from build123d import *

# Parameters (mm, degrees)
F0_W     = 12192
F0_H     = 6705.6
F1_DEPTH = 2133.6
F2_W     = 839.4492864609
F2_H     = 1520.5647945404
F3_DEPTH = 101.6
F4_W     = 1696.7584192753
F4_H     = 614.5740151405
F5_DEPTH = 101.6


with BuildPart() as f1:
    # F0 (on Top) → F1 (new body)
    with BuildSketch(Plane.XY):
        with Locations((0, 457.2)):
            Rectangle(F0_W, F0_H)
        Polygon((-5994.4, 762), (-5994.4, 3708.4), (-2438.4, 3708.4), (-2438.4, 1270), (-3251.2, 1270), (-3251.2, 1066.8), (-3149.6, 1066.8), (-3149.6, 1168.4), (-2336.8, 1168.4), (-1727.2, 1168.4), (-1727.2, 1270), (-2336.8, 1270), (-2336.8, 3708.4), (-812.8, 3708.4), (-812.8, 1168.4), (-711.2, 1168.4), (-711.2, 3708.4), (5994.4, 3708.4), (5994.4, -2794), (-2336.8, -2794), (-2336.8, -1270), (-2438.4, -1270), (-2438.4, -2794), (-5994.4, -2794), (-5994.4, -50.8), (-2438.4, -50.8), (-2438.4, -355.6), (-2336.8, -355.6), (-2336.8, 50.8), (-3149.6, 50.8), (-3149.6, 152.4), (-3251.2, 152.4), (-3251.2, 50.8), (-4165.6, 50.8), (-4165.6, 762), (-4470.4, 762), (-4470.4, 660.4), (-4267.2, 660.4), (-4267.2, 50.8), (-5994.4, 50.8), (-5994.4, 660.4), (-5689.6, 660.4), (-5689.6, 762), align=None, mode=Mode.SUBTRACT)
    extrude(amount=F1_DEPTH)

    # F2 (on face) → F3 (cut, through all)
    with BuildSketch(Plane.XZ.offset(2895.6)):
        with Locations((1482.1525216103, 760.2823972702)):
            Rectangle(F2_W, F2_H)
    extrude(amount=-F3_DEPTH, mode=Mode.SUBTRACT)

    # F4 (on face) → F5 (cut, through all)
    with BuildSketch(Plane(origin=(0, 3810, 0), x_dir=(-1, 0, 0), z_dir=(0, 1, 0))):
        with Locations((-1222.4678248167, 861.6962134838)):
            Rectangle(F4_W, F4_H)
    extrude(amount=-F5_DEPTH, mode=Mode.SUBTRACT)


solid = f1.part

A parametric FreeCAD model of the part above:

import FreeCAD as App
import Part
import Sketcher
Q = App.Units.Quantity

doc = App.newDocument("Part")
body = doc.addObject("PartDesign::Body", "Body")

sketch1 = body.newObject("Sketcher::SketchObject", "Sketch")
sketch1.AttachmentSupport = (doc.getObject("XY_Plane"), [""])
sketch1.MapMode = "FlatFace"
sketch1.addGeometry([
    Part.LineSegment(App.Vector(-6096, 3810, 0), App.Vector(-6096, -2896, 0)),
    Part.LineSegment(App.Vector(-6096, -2896, 0), App.Vector(6096, -2896, 0)),
    Part.LineSegment(App.Vector(6096, -2896, 0), App.Vector(6096, 3810, 0)),
    Part.LineSegment(App.Vector(6096, 3810, 0), App.Vector(-6096, 3810, 0)),
    Part.LineSegment(App.Vector(-5690, 762, 0), App.Vector(-5994, 762, 0)),
    Part.LineSegment(App.Vector(-5994, 762, 0), App.Vector(-5994, 3708, 0)),
    Part.LineSegment(App.Vector(-5994, 3708, 0), App.Vector(-2438, 3708, 0)),
    Part.LineSegment(App.Vector(-2438, 3708, 0), App.Vector(-2438, 1270, 0)),
    Part.LineSegment(App.Vector(-2438, 1270, 0), App.Vector(-3251, 1270, 0)),
    Part.LineSegment(App.Vector(-3251, 1270, 0), App.Vector(-3251, 1067, 0)),
    Part.LineSegment(App.Vector(-3251, 1067, 0), App.Vector(-3150, 1067, 0)),
    Part.LineSegment(App.Vector(-3150, 1067, 0), App.Vector(-3150, 1168, 0)),
    Part.LineSegment(App.Vector(-3150, 1168, 0), App.Vector(-1727, 1168, 0)),
    Part.LineSegment(App.Vector(-1727, 1168, 0), App.Vector(-1727, 1270, 0)),
    Part.LineSegment(App.Vector(-1727, 1270, 0), App.Vector(-2337, 1270, 0)),
    Part.LineSegment(App.Vector(-2337, 1270, 0), App.Vector(-2337, 3708, 0)),
    Part.LineSegment(App.Vector(-2337, 3708, 0), App.Vector(-813, 3708, 0)),
    Part.LineSegment(App.Vector(-813, 3708, 0), App.Vector(-813, 1168, 0)),
    Part.LineSegment(App.Vector(-813, 1168, 0), App.Vector(-711, 1168, 0)),
    Part.LineSegment(App.Vector(-711, 1168, 0), App.Vector(-711, 3708, 0)),
    Part.LineSegment(App.Vector(-711, 3708, 0), App.Vector(5994, 3708, 0)),
    Part.LineSegment(App.Vector(5994, 3708, 0), App.Vector(5994, -2794, 0)),
    Part.LineSegment(App.Vector(5994, -2794, 0), App.Vector(-2337, -2794, 0)),
    Part.LineSegment(App.Vector(-2337, -2794, 0), App.Vector(-2337, -1270, 0)),
    Part.LineSegment(App.Vector(-2337, -1270, 0), App.Vector(-2438, -1270, 0)),
    Part.LineSegment(App.Vector(-2438, -1270, 0), App.Vector(-2438, -2794, 0)),
    Part.LineSegment(App.Vector(-2438, -2794, 0), App.Vector(-5994, -2794, 0)),
    Part.LineSegment(App.Vector(-5994, -2794, 0), App.Vector(-5994, -51, 0)),
    Part.LineSegment(App.Vector(-5994, -51, 0), App.Vector(-2438, -51, 0)),
    Part.LineSegment(App.Vector(-2438, -51, 0), App.Vector(-2438, -356, 0)),
    Part.LineSegment(App.Vector(-2438, -356, 0), App.Vector(-2337, -356, 0)),
    Part.LineSegment(App.Vector(-2337, -356, 0), App.Vector(-2337, 51, 0)),
    Part.LineSegment(App.Vector(-2337, 51, 0), App.Vector(-3150, 51, 0)),
    Part.LineSegment(App.Vector(-3150, 51, 0), App.Vector(-3150, 152, 0)),
    Part.LineSegment(App.Vector(-3150, 152, 0), App.Vector(-3251, 152, 0)),
    Part.LineSegment(App.Vector(-3251, 152, 0), App.Vector(-3251, 51, 0)),
    Part.LineSegment(App.Vector(-3251, 51, 0), App.Vector(-4166, 51, 0)),
    Part.LineSegment(App.Vector(-4166, 51, 0), App.Vector(-4166, 762, 0)),
    Part.LineSegment(App.Vector(-4166, 762, 0), App.Vector(-4470, 762, 0)),
    Part.LineSegment(App.Vector(-4470, 762, 0), App.Vector(-4470, 660, 0)),
    Part.LineSegment(App.Vector(-4470, 660, 0), App.Vector(-4267, 660, 0)),
    Part.LineSegment(App.Vector(-4267, 660, 0), App.Vector(-4267, 51, 0)),
    Part.LineSegment(App.Vector(-4267, 51, 0), App.Vector(-5994, 51, 0)),
    Part.LineSegment(App.Vector(-5994, 51, 0), App.Vector(-5994, 660, 0)),
    Part.LineSegment(App.Vector(-5994, 660, 0), App.Vector(-5690, 660, 0)),
    Part.LineSegment(App.Vector(-5690, 660, 0), App.Vector(-5690, 762, 0)),
], False)
sketch1.addConstraint([
    Sketcher.Constraint("Coincident", 0, 2, 1, 1),
    Sketcher.Constraint("Coincident", 1, 2, 2, 1),
    Sketcher.Constraint("Coincident", 2, 2, 3, 1),
    Sketcher.Constraint("Coincident", 3, 2, 0, 1),
    Sketcher.Constraint("Coincident", 4, 2, 5, 1),
    Sketcher.Constraint("Coincident", 5, 2, 6, 1),
    Sketcher.Constraint("Coincident", 6, 2, 7, 1),
    Sketcher.Constraint("Coincident", 7, 2, 8, 1),
    Sketcher.Constraint("Coincident", 8, 2, 9, 1),
    Sketcher.Constraint("Coincident", 9, 2, 10, 1),
    Sketcher.Constraint("Coincident", 10, 2, 11, 1),
    Sketcher.Constraint("Coincident", 11, 2, 12, 1),
    Sketcher.Constraint("Coincident", 12, 2, 13, 1),
    Sketcher.Constraint("Coincident", 13, 2, 14, 1),
    Sketcher.Constraint("Coincident", 14, 2, 15, 1),
    Sketcher.Constraint("Coincident", 15, 2, 16, 1),
    Sketcher.Constraint("Coincident", 16, 2, 17, 1),
    Sketcher.Constraint("Coincident", 17, 2, 18, 1),
    Sketcher.Constraint("Coincident", 18, 2, 19, 1),
    Sketcher.Constraint("Coincident", 19, 2, 20, 1),
    Sketcher.Constraint("Coincident", 20, 2, 21, 1),
    Sketcher.Constraint("Coincident", 21, 2, 22, 1),
    Sketcher.Constraint("Coincident", 22, 2, 23, 1),
    Sketcher.Constraint("Coincident", 23, 2, 24, 1),
    Sketcher.Constraint("Coincident", 24, 2, 25, 1),
    Sketcher.Constraint("Coincident", 25, 2, 26, 1),
    Sketcher.Constraint("Coincident", 26, 2, 27, 1),
    Sketcher.Constraint("Coincident", 27, 2, 28, 1),
    Sketcher.Constraint("Coincident", 28, 2, 29, 1),
    Sketcher.Constraint("Coincident", 29, 2, 30, 1),
    Sketcher.Constraint("Coincident", 30, 2, 31, 1),
    Sketcher.Constraint("Coincident", 31, 2, 32, 1),
    Sketcher.Constraint("Coincident", 32, 2, 33, 1),
    Sketcher.Constraint("Coincident", 33, 2, 34, 1),
    Sketcher.Constraint("Coincident", 34, 2, 35, 1),
    Sketcher.Constraint("Coincident", 35, 2, 36, 1),
    Sketcher.Constraint("Coincident", 36, 2, 37, 1),
    Sketcher.Constraint("Coincident", 37, 2, 38, 1),
    Sketcher.Constraint("Coincident", 38, 2, 39, 1),
    Sketcher.Constraint("Coincident", 39, 2, 40, 1),
    Sketcher.Constraint("Coincident", 40, 2, 41, 1),
    Sketcher.Constraint("Coincident", 41, 2, 42, 1),
    Sketcher.Constraint("Coincident", 42, 2, 43, 1),
    Sketcher.Constraint("Coincident", 43, 2, 44, 1),
    Sketcher.Constraint("Coincident", 44, 2, 45, 1),
    Sketcher.Constraint("Coincident", 45, 2, 4, 1),
    Sketcher.Constraint("Vertical", 0),
    Sketcher.Constraint("Horizontal", 1),
    Sketcher.Constraint("Vertical", 2),
    Sketcher.Constraint("Horizontal", 3),
    Sketcher.Constraint("Horizontal", 4),
    Sketcher.Constraint("Vertical", 5),
    Sketcher.Constraint("Horizontal", 6),
    Sketcher.Constraint("Vertical", 7),
    Sketcher.Constraint("Horizontal", 8),
    Sketcher.Constraint("Vertical", 9),
    Sketcher.Constraint("Horizontal", 10),
    Sketcher.Constraint("Vertical", 11),
    Sketcher.Constraint("Horizontal", 12),
    Sketcher.Constraint("Vertical", 13),
    Sketcher.Constraint("Horizontal", 14),
    Sketcher.Constraint("Vertical", 15),
    Sketcher.Constraint("Horizontal", 16),
    Sketcher.Constraint("Vertical", 17),
    Sketcher.Constraint("Horizontal", 18),
    Sketcher.Constraint("Vertical", 19),
    Sketcher.Constraint("Horizontal", 20),
    Sketcher.Constraint("Vertical", 21),
    Sketcher.Constraint("Horizontal", 22),
    Sketcher.Constraint("Vertical", 23),
    Sketcher.Constraint("Horizontal", 24),
    Sketcher.Constraint("Vertical", 25),
    Sketcher.Constraint("Horizontal", 26),
    Sketcher.Constraint("Vertical", 27),
    Sketcher.Constraint("Horizontal", 28),
    Sketcher.Constraint("Vertical", 29),
    Sketcher.Constraint("Horizontal", 30),
    Sketcher.Constraint("Vertical", 31),
    Sketcher.Constraint("Horizontal", 32),
    Sketcher.Constraint("Vertical", 33),
    Sketcher.Constraint("Horizontal", 34),
    Sketcher.Constraint("Vertical", 35),
    Sketcher.Constraint("Horizontal", 36),
    Sketcher.Constraint("Vertical", 37),
    Sketcher.Constraint("Horizontal", 38),
    Sketcher.Constraint("Vertical", 39),
    Sketcher.Constraint("Horizontal", 40),
    Sketcher.Constraint("Vertical", 41),
    Sketcher.Constraint("Horizontal", 42),
    Sketcher.Constraint("Vertical", 43),
    Sketcher.Constraint("Horizontal", 44),
    Sketcher.Constraint("Vertical", 45),
    Sketcher.Constraint("Symmetric", 5, 2, 20, 2, -2),
    Sketcher.Constraint("Symmetric", 21, 2, 26, 2, -2),
    Sketcher.Constraint("Symmetric", 14, 2, 23, 2, -1),
    Sketcher.Constraint("Symmetric", 7, 2, 24, 2, -1),
    Sketcher.Constraint("Symmetric", 27, 2, 42, 2, -1),
    Sketcher.Constraint("Horizontal", 6, 2, 15, 2),
    Sketcher.Constraint("Horizontal", 12, 2, 17, 2),
    Sketcher.Constraint("Horizontal", 32, 2, 35, 2),
    Sketcher.Constraint("Horizontal", 4, 2, 37, 2),
    Sketcher.Constraint("Horizontal", 36, 2, 41, 2),
    Sketcher.Constraint("Horizontal", 40, 2, 43, 2),
    Sketcher.Constraint("Vertical", 25, 2, 28, 2),
    Sketcher.Constraint("Vertical", 23, 2, 30, 2),
    Sketcher.Constraint("Vertical", 11, 2, 32, 2),
    Sketcher.Constraint("Vertical", 9, 2, 34, 2),
    Sketcher.Constraint("Equal", 10, 18),
    Sketcher.Constraint("Equal", 18, 24),
    Sketcher.Constraint("Equal", 4, 38),
    Sketcher.Constraint("Equal", 20, 0),
    Sketcher.Constraint("Equal", 40, 9),
    Sketcher.Constraint("Equal", 34, 11),
    Sketcher.Constraint("Equal", 11, 13),
    Sketcher.Constraint("Equal", 16, 23),
    Sketcher.Constraint("Equal", 44, 29),
    Sketcher.Constraint("Equal", 13, 33),
    Sketcher.Constraint("Equal", 35, 39),
    Sketcher.Constraint("Equal", 14, 41),
    Sketcher.Constraint("DistanceX", 1, 1, 1, 2, Q("480 in")),
    Sketcher.Constraint("DistanceX", 4, 2, 4, 1, Q("12 in")),
    Sketcher.Constraint("DistanceX", 6, 1, 6, 2, Q("140 in")),
    Sketcher.Constraint("DistanceX", 8, 2, 8, 1, Q("32 in")),
    Sketcher.Constraint("DistanceX", 10, 1, 10, 2, Q("4 in")),
    Sketcher.Constraint("DistanceX", 12, 1, 12, 2, Q("56 in")),
    Sketcher.Constraint("DistanceX", 16, 1, 16, 2, Q("60 in")),
    Sketcher.Constraint("DistanceX", 20, 1, 20, 2, Q("264 in")),
    Sketcher.Constraint("DistanceX", 36, 2, 36, 1, Q("36 in")),
    Sketcher.Constraint("DistanceY", 5, 1, 5, 2, Q("116 in")),
    Sketcher.Constraint("DistanceY", 7, 2, 7, 1, Q("96 in")),
    Sketcher.Constraint("DistanceY", 21, 2, 21, 1, Q("256 in")),
    Sketcher.Constraint("DistanceX", 0, 2, -1, 1, Q("240 in")),
    Sketcher.Constraint("DistanceY", 0, 2, -1, 1, Q("114 in")),
])
pad1 = body.newObject("PartDesign::Pad", "Pad")
pad1.Profile = sketch1
pad1.Length = Q("84 in")

sketch2 = body.newObject("Sketcher::SketchObject", "Sketch001")
sketch2.AttachmentSupport = (doc.getObject("XZ_Plane"), [""])
sketch2.MapMode = "FlatFace"
sketch2.AttachmentOffset = App.Placement(App.Vector(0, 0, 114 * 25.4), App.Rotation())
sketch2.addGeometry([
    Part.LineSegment(App.Vector(1062, 1521, 0), App.Vector(1062, 0, 0)),
    Part.LineSegment(App.Vector(1062, 0, 0), App.Vector(1902, 0, 0)),
    Part.LineSegment(App.Vector(1902, 0, 0), App.Vector(1902, 1521, 0)),
    Part.LineSegment(App.Vector(1902, 1521, 0), App.Vector(1062, 1521, 0)),
], False)
sketch2.addConstraint([
    Sketcher.Constraint("Coincident", 0, 2, 1, 1),
    Sketcher.Constraint("Coincident", 1, 2, 2, 1),
    Sketcher.Constraint("Coincident", 2, 2, 3, 1),
    Sketcher.Constraint("Coincident", 3, 2, 0, 1),
    Sketcher.Constraint("Vertical", 0),
    Sketcher.Constraint("Horizontal", 1),
    Sketcher.Constraint("Vertical", 2),
    Sketcher.Constraint("Horizontal", 3),
    Sketcher.Constraint("PointOnObject", 0, 2, -1),
    Sketcher.Constraint("DistanceX", 1, 1, 1, 2, 839.449286),
    Sketcher.Constraint("DistanceY", 0, 2, 0, 1, 1520.564795),
    Sketcher.Constraint("DistanceX", -1, 1, 0, 2, 1062.427878),
])
pocket1 = body.newObject("PartDesign::Pocket", "Pocket")
pocket1.Profile = sketch2
pocket1.Length = Q("4 in")

sketch3 = body.newObject("Sketcher::SketchObject", "Sketch002")
sketch3.AttachmentSupport = (doc.getObject("XZ_Plane"), [""])
sketch3.MapMode = "FlatFace"
sketch3.AttachmentOffset = App.Placement(App.Vector(0, 0, -150 * 25.4), App.Rotation())
sketch3.addGeometry([
    Part.LineSegment(App.Vector(2071, 1169, 0), App.Vector(2071, 554, 0)),
    Part.LineSegment(App.Vector(2071, 554, 0), App.Vector(374, 554, 0)),
    Part.LineSegment(App.Vector(374, 554, 0), App.Vector(374, 1169, 0)),
    Part.LineSegment(App.Vector(374, 1169, 0), App.Vector(2071, 1169, 0)),
], False)
sketch3.addConstraint([
    Sketcher.Constraint("Coincident", 0, 2, 1, 1),
    Sketcher.Constraint("Coincident", 1, 2, 2, 1),
    Sketcher.Constraint("Coincident", 2, 2, 3, 1),
    Sketcher.Constraint("Coincident", 3, 2, 0, 1),
    Sketcher.Constraint("Vertical", 0),
    Sketcher.Constraint("Horizontal", 1),
    Sketcher.Constraint("Vertical", 2),
    Sketcher.Constraint("Horizontal", 3),
    Sketcher.Constraint("DistanceX", 1, 2, 1, 1, 1696.758419),
    Sketcher.Constraint("DistanceY", 0, 2, 0, 1, 614.574015),
    Sketcher.Constraint("DistanceY", -1, 1, 2, 2, 1168.983221),
    Sketcher.Constraint("DistanceX", -1, 1, 0, 2, 2070.847034),
])
pocket2 = body.newObject("PartDesign::Pocket", "Pocket001")
pocket2.Profile = sketch3
pocket2.Length = Q("4 in")
pocket2.Reversed = True

doc.recompute()
